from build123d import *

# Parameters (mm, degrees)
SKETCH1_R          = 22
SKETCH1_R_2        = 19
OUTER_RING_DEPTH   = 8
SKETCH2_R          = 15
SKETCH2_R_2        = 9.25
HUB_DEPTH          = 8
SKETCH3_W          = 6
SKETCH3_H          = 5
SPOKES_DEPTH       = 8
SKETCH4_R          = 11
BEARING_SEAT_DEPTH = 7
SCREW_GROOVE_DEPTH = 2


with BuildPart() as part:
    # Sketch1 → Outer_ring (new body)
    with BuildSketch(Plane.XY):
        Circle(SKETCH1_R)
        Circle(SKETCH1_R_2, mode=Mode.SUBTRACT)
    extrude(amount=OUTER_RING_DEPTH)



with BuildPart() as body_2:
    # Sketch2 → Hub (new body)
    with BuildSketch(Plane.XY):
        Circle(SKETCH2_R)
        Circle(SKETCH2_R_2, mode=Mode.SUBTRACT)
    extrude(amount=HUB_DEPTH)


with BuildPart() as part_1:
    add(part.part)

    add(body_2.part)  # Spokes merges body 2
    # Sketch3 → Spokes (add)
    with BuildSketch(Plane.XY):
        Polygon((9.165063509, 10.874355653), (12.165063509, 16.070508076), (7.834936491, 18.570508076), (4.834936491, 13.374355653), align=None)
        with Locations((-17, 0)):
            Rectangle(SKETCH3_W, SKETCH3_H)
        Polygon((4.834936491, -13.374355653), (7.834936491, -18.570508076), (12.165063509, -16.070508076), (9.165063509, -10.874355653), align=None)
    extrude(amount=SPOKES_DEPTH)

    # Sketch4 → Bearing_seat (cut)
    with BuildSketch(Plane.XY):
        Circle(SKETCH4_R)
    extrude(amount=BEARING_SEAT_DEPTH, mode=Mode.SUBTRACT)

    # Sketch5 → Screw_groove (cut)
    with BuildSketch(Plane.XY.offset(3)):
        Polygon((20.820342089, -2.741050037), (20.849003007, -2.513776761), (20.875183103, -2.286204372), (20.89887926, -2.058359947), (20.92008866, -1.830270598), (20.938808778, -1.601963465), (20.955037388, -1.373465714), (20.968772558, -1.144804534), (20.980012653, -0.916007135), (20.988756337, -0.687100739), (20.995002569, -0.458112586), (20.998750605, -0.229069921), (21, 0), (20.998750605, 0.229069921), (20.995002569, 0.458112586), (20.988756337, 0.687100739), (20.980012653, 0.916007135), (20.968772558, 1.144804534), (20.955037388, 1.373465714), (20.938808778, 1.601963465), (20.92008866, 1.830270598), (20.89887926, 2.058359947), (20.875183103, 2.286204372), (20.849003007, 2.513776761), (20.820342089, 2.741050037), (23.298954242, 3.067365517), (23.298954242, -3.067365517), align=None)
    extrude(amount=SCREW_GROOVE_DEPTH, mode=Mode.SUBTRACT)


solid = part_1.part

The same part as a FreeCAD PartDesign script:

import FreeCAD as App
import Part
import Sketcher
from FreeCAD import Vector
Q = App.Units.Quantity

doc = App.newDocument("Part")
params = doc.addObject("Spreadsheet::Sheet", "Params")
for row, (alias, value) in enumerate([
    ("sketch1_diameter", "44 mm"),
    ("sketch1_diameter2", "38 mm"),
    ("pad1_length", "8 mm"),
    ("sketch2_diameter", "30 mm"),
    ("sketch2_diameter2", "18.5 mm"),
    ("pad2_length", "8 mm"),
    ("sketch3_width", "6 mm"),
    ("sketch3_height", "5 mm"),
    ("sketch3_length", "6 mm"),
    ("sketch3_length2", "5 mm"),
    ("pad3_length", "8 mm"),
    ("sketch4_diameter", "22 mm"),
    ("pocket1_length", "7 mm"),
    ("sketch5_length", "2.5 mm"),
    ("pocket2_length", "2 mm"),
], start=1):
    params.set(f"A{row}", alias)
    params.set(f"B{row}", "=" + value)
    params.setAlias(f"B{row}", alias)

body = doc.addObject("PartDesign::Body", "Body")

# Sketch on XY plane
sketch1 = body.newObject("Sketcher::SketchObject", "Sketch")
sketch1.AttachmentSupport = (doc.getObject("XY_Plane"), [""])
sketch1.MapMode = "FlatFace"
sketch1.addGeometry(Part.Circle(Vector(0, 0, 0), Vector(0, 0, 1), 22), False)
sketch1.addGeometry(Part.Circle(Vector(0, 0, 0), Vector(0, 0, 1), 19), False)
sketch1.addConstraint(Sketcher.Constraint("Coincident", 0, 3, -1, 1))
sketch1.addConstraint(Sketcher.Constraint("Coincident", 1, 3, -1, 1))
sketch1.addConstraint(Sketcher.Constraint("Diameter", 0, Q("44 mm")))
sketch1.addConstraint(Sketcher.Constraint("Diameter", 1, Q("38 mm")))
sketch1.setExpression("Constraints[2]", "Params.sketch1_diameter")
sketch1.setExpression("Constraints[3]", "Params.sketch1_diameter2")
pad1 = body.newObject("PartDesign::Pad", "Pad")
pad1.Profile = sketch1
pad1.setExpression("Length", "Params.pad1_length")
body2 = doc.addObject("PartDesign::Body", "Body001")

# Sketch on XY plane
sketch2 = body2.newObject("Sketcher::SketchObject", "Sketch001")
sketch2.AttachmentSupport = (doc.getObject("XY_Plane001"), [""])
sketch2.MapMode = "FlatFace"
sketch2.addGeometry(Part.Circle(Vector(0, 0, 0), Vector(0, 0, 1), 15), False)
sketch2.addGeometry(Part.Circle(Vector(0, 0, 0), Vector(0, 0, 1), 9), False)
sketch2.addConstraint(Sketcher.Constraint("Coincident", 0, 3, -1, 1))
sketch2.addConstraint(Sketcher.Constraint("Coincident", 1, 3, -1, 1))
sketch2.addConstraint(Sketcher.Constraint("Diameter", 0, Q("30 mm")))
sketch2.addConstraint(Sketcher.Constraint("Diameter", 1, Q("18.5 mm")))
sketch2.setExpression("Constraints[2]", "Params.sketch2_diameter")
sketch2.setExpression("Constraints[3]", "Params.sketch2_diameter2")
pad2 = body2.newObject("PartDesign::Pad", "Pad001")
pad2.Profile = sketch2
pad2.setExpression("Length", "Params.pad2_length")
body.AllowCompound = True
doc.recompute()

boolean = body.newObject("PartDesign::Boolean", "Boolean")
boolean.Type = "Fuse"
boolean.addObjects([body2])

# Sketch on XY plane
sketch3 = body.newObject("Sketcher::SketchObject", "Sketch002")
sketch3.AttachmentSupport = (doc.getObject("XY_Plane"), [""])
sketch3.MapMode = "FlatFace"
sketch3.addGeometry(Part.LineSegment(Vector(9.2, 10.9, 0), Vector(12.2, 16.1, 0)), False)
sketch3.addGeometry(Part.LineSegment(Vector(12.2, 16.1, 0), Vector(7.8, 18.6, 0)), False)
sketch3.addGeometry(Part.LineSegment(Vector(7.8, 18.6, 0), Vector(4.8, 13.4, 0)), False)
sketch3.addGeometry(Part.LineSegment(Vector(4.8, 13.4, 0), Vector(9.2, 10.9, 0)), False)
sketch3.addGeometry(Part.LineSegment(Vector(-20, 2.5, 0), Vector(-20, -2.5, 0)), False)
sketch3.addGeometry(Part.LineSegment(Vector(-20, -2.5, 0), Vector(-14, -2.5, 0)), False)
sketch3.addGeometry(Part.LineSegment(Vector(-14, -2.5, 0), Vector(-14, 2.5, 0)), False)
sketch3.addGeometry(Part.LineSegment(Vector(-14, 2.5, 0), Vector(-20, 2.5, 0)), False)
sketch3.addGeometry(Part.LineSegment(Vector(4.8, -13.4, 0), Vector(7.8, -18.6, 0)), False)
sketch3.addGeometry(Part.LineSegment(Vector(7.8, -18.6, 0), Vector(12.2, -16.1, 0)), False)
sketch3.addGeometry(Part.LineSegment(Vector(12.2, -16.1, 0), Vector(9.2, -10.9, 0)), False)
sketch3.addGeometry(Part.LineSegment(Vector(9.2, -10.9, 0), Vector(4.8, -13.4, 0)), False)
sketch3.addConstraint(Sketcher.Constraint("Coincident", 0, 2, 1, 1))
sketch3.addConstraint(Sketcher.Constraint("Coincident", 1, 2, 2, 1))
sketch3.addConstraint(Sketcher.Constraint("Coincident", 2, 2, 3, 1))
sketch3.addConstraint(Sketcher.Constraint("Coincident", 3, 2, 0, 1))
sketch3.addConstraint(Sketcher.Constraint("Coincident", 4, 2, 5, 1))
sketch3.addConstraint(Sketcher.Constraint("Coincident", 5, 2, 6, 1))
sketch3.addConstraint(Sketcher.Constraint("Coincident", 6, 2, 7, 1))
sketch3.addConstraint(Sketcher.Constraint("Coincident", 7, 2, 4, 1))
sketch3.addConstraint(Sketcher.Constraint("Coincident", 8, 2, 9, 1))
sketch3.addConstraint(Sketcher.Constraint("Coincident", 9, 2, 10, 1))
sketch3.addConstraint(Sketcher.Constraint("Coincident", 10, 2, 11, 1))
sketch3.addConstraint(Sketcher.Constraint("Coincident", 11, 2, 8, 1))
sketch3.addConstraint(Sketcher.Constraint("Vertical", 4))
sketch3.addConstraint(Sketcher.Constraint("Horizontal", 5))
sketch3.addConstraint(Sketcher.Constraint("Vertical", 6))
sketch3.addConstraint(Sketcher.Constraint("Horizontal", 7))
sketch3.addConstraint(Sketcher.Constraint("Symmetric", 1, 2, 8, 2, -1))
sketch3.addConstraint(Sketcher.Constraint("Symmetric", 0, 2, 9, 2, -1))
sketch3.addConstraint(Sketcher.Constraint("Symmetric", 3, 2, 10, 2, -1))
sketch3.addConstraint(Sketcher.Constraint("Symmetric", 2, 2, 11, 2, -1))
sketch3.addConstraint(Sketcher.Constraint("Perpendicular", 0, 1))
sketch3.addConstraint(Sketcher.Constraint("Perpendicular", 1, 2))
sketch3.addConstraint(Sketcher.Constraint("Perpendicular", 2, 3))
sketch3.addConstraint(Sketcher.Constraint("DistanceX", 5, 1, 5, 2, Q("6 mm")))
sketch3.addConstraint(Sketcher.Constraint("DistanceY", 4, 2, 4, 1, Q("5 mm")))
sketch3.addConstraint(Sketcher.Constraint("Angle", 0, Q("60 deg")))
sketch3.addConstraint(Sketcher.Constraint("Distance", 0, Q("6 mm")))
sketch3.addConstraint(Sketcher.Constraint("Distance", 1, Q("5 mm")))
sketch3.addConstraint(Sketcher.Constraint("DistanceX", 4, 2, -1, 1, Q("20 mm")))
sketch3.addConstraint(Sketcher.Constraint("DistanceY", 4, 2, -1, 1, Q("2.5 mm")))
sketch3.addConstraint(Sketcher.Constraint("DistanceY", -1, 1, 0, 2, Q("16.070508 mm")))
sketch3.addConstraint(Sketcher.Constraint("DistanceX", -1, 1, 0, 2, Q("12.165064 mm")))
sketch3.setExpression("Constraints[23]", "Params.sketch3_width")
sketch3.setExpression("Constraints[24]", "Params.sketch3_height")
sketch3.setExpression("Constraints[26]", "Params.sketch3_length")
sketch3.setExpression("Constraints[27]", "Params.sketch3_length2")
pad3 = body.newObject("PartDesign::Pad", "Pad002")
pad3.Profile = sketch3
pad3.setExpression("Length", "Params.pad3_length")

# Sketch on XY plane
sketch4 = body.newObject("Sketcher::SketchObject", "Sketch003")
sketch4.AttachmentSupport = (doc.getObject("XY_Plane"), [""])
sketch4.MapMode = "FlatFace"
sketch4.addGeometry(Part.Circle(Vector(0, 0, 0), Vector(0, 0, 1), 11), False)
sketch4.addConstraint(Sketcher.Constraint("Coincident", 0, 3, -1, 1))
sketch4.addConstraint(Sketcher.Constraint("Diameter", 0, Q("22 mm")))
sketch4.setExpression("Constraints[1]", "Params.sketch4_diameter")
pocket1 = body.newObject("PartDesign::Pocket", "Pocket")
pocket1.Profile = sketch4
pocket1.setExpression("Length", "Params.pocket1_length")
pocket1.Reversed = True

# Sketch on XY plane
sketch5 = body.newObject("Sketcher::SketchObject", "Sketch004")
sketch5.AttachmentSupport = (doc.getObject("XY_Plane"), [""])
sketch5.MapMode = "FlatFace"
sketch5.AttachmentOffset = App.Placement(Vector(0, 0, 3), App.Rotation())
sketch5.addGeometry(Part.LineSegment(Vector(20.849003, -2.513777, 0), Vector(20.820342, -2.74105, 0)), False)
sketch5.addGeometry(Part.LineSegment(Vector(20.820342, -2.74105, 0), Vector(23.298954, -3.067366, 0)), False)
sketch5.addGeometry(Part.LineSegment(Vector(23.298954, -3.067366, 0), Vector(23.298954, 3.067366, 0)), False)
sketch5.addGeometry(Part.LineSegment(Vector(23.298954, 3.067366, 0), Vector(20.820342, 2.74105, 0)), False)
sketch5.addGeometry(Part.LineSegment(Vector(20.820342, 2.74105, 0), Vector(20.849003, 2.513777, 0)), False)
sketch5.addGeometry(Part.LineSegment(Vector(20.849003, 2.513777, 0), Vector(20.875183, 2.286204, 0)), False)
sketch5.addGeometry(Part.LineSegment(Vector(20.875183, 2.286204, 0), Vector(20.898879, 2.05836, 0)), False)
sketch5.addGeometry(Part.LineSegment(Vector(20.898879, 2.05836, 0), Vector(20.920089, 1.830271, 0)), False)
sketch5.addGeometry(Part.LineSegment(Vector(20.920089, 1.830271, 0), Vector(20.938809, 1.601963, 0)), False)
sketch5.addGeometry(Part.LineSegment(Vector(20.938809, 1.601963, 0), Vector(20.955037, 1.373466, 0)), False)
sketch5.addGeometry(Part.LineSegment(Vector(20.955037, 1.373466, 0), Vector(20.968773, 1.144805, 0)), False)
sketch5.addGeometry(Part.LineSegment(Vector(20.968773, 1.144805, 0), Vector(20.980013, 0.916007, 0)), False)
sketch5.addGeometry(Part.LineSegment(Vector(20.980013, 0.916007, 0), Vector(20.988756, 0.687101, 0)), False)
sketch5.addGeometry(Part.LineSegment(Vector(20.988756, 0.687101, 0), Vector(20.995003, 0.458113, 0)), False)
sketch5.addGeometry(Part.LineSegment(Vector(20.995003, 0.458113, 0), Vector(20.998751, 0.22907, 0)), False)
sketch5.addGeometry(Part.LineSegment(Vector(20.998751, 0.22907, 0), Vector(21, 0, 0)), False)
sketch5.addGeometry(Part.LineSegment(Vector(21, 0, 0), Vector(20.998751, -0.22907, 0)), False)
sketch5.addGeometry(Part.LineSegment(Vector(20.998751, -0.22907, 0), Vector(20.995003, -0.458113, 0)), False)
sketch5.addGeometry(Part.LineSegment(Vector(20.995003, -0.458113, 0), Vector(20.988756, -0.687101, 0)), False)
sketch5.addGeometry(Part.LineSegment(Vector(20.988756, -0.687101, 0), Vector(20.980013, -0.916007, 0)), False)
sketch5.addGeometry(Part.LineSegment(Vector(20.980013, -0.916007, 0), Vector(20.968773, -1.144805, 0)), False)
sketch5.addGeometry(Part.LineSegment(Vector(20.968773, -1.144805, 0), Vector(20.955037, -1.373466, 0)), False)
sketch5.addGeometry(Part.LineSegment(Vector(20.955037, -1.373466, 0), Vector(20.938809, -1.601963, 0)), False)
sketch5.addGeometry(Part.LineSegment(Vector(20.938809, -1.601963, 0), Vector(20.920089, -1.830271, 0)), False)
sketch5.addGeometry(Part.LineSegment(Vector(20.920089, -1.830271, 0), Vector(20.898879, -2.05836, 0)), False)
sketch5.addGeometry(Part.LineSegment(Vector(20.898879, -2.05836, 0), Vector(20.875183, -2.286204, 0)), False)
sketch5.addGeometry(Part.LineSegment(Vector(20.875183, -2.286204, 0), Vector(20.849003, -2.513777, 0)), False)
sketch5.addConstraint(Sketcher.Constraint("Coincident", 0, 2, 1, 1))
sketch5.addConstraint(Sketcher.Constraint("Coincident", 1, 2, 2, 1))
sketch5.addConstraint(Sketcher.Constraint("Coincident", 2, 2, 3, 1))
sketch5.addConstraint(Sketcher.Constraint("Coincident", 3, 2, 4, 1))
sketch5.addConstraint(Sketcher.Constraint("Coincident", 4, 2, 5, 1))
sketch5.addConstraint(Sketcher.Constraint("Coincident", 5, 2, 6, 1))
sketch5.addConstraint(Sketcher.Constraint("Coincident", 6, 2, 7, 1))
sketch5.addConstraint(Sketcher.Constraint("Coincident", 7, 2, 8, 1))
sketch5.addConstraint(Sketcher.Constraint("Coincident", 8, 2, 9, 1))
sketch5.addConstraint(Sketcher.Constraint("Coincident", 9, 2, 10, 1))
sketch5.addConstraint(Sketcher.Constraint("Coincident", 10, 2, 11, 1))
sketch5.addConstraint(Sketcher.Constraint("Coincident", 11, 2, 12, 1))
sketch5.addConstraint(Sketcher.Constraint("Coincident", 12, 2, 13, 1))
sketch5.addConstraint(Sketcher.Constraint("Coincident", 13, 2, 14, 1))
sketch5.addConstraint(Sketcher.Constraint("Coincident", 14, 2, 15, 1))
sketch5.addConstraint(Sketcher.Constraint("Coincident", 15, 2, 16, 1))
sketch5.addConstraint(Sketcher.Constraint("Coincident", 16, 2, 17, 1))
sketch5.addConstraint(Sketcher.Constraint("Coincident", 17, 2, 18, 1))
sketch5.addConstraint(Sketcher.Constraint("Coincident", 18, 2, 19, 1))
sketch5.addConstraint(Sketcher.Constraint("Coincident", 19, 2, 20, 1))
sketch5.addConstraint(Sketcher.Constraint("Coincident", 20, 2, 21, 1))
sketch5.addConstraint(Sketcher.Constraint("Coincident", 21, 2, 22, 1))
sketch5.addConstraint(Sketcher.Constraint("Coincident", 22, 2, 23, 1))
sketch5.addConstraint(Sketcher.Constraint("Coincident", 23, 2, 24, 1))
sketch5.addConstraint(Sketcher.Constraint("Coincident", 24, 2, 25, 1))
sketch5.addConstraint(Sketcher.Constraint("Coincident", 25, 2, 26, 1))
sketch5.addConstraint(Sketcher.Constraint("Coincident", 26, 2, 0, 1))
sketch5.addConstraint(Sketcher.Constraint("Vertical", 2))
sketch5.addConstraint(Sketcher.Constraint("Symmetric", 0, 2, 3, 2, -1))
sketch5.addConstraint(Sketcher.Constraint("Symmetric", 14, 2, 16, 2, -1))
sketch5.addConstraint(Sketcher.Constraint("Symmetric", 13, 2, 17, 2, -1))
sketch5.addConstraint(Sketcher.Constraint("Symmetric", 12, 2, 18, 2, -1))
sketch5.addConstraint(Sketcher.Constraint("Symmetric", 11, 2, 19, 2, -1))
sketch5.addConstraint(Sketcher.Constraint("Symmetric", 10, 2, 20, 2, -1))
sketch5.addConstraint(Sketcher.Constraint("Symmetric", 9, 2, 21, 2, -1))
sketch5.addConstraint(Sketcher.Constraint("Symmetric", 8, 2, 22, 2, -1))
sketch5.addConstraint(Sketcher.Constraint("Symmetric", 7, 2, 23, 2, -1))
sketch5.addConstraint(Sketcher.Constraint("Symmetric", 6, 2, 24, 2, -1))
sketch5.addConstraint(Sketcher.Constraint("Symmetric", 5, 2, 25, 2, -1))
sketch5.addConstraint(Sketcher.Constraint("Symmetric", 4, 2, 26, 2, -1))
sketch5.addConstraint(Sketcher.Constraint("PointOnObject", 15, 2, -1))
sketch5.addConstraint(Sketcher.Constraint("Equal", 1, 3))
sketch5.addConstraint(Sketcher.Constraint("Equal", 4, 5))
sketch5.addConstraint(Sketcher.Constraint("Equal", 5, 6))
sketch5.addConstraint(Sketcher.Constraint("Equal", 6, 7))
sketch5.addConstraint(Sketcher.Constraint("Equal", 7, 8))
sketch5.addConstraint(Sketcher.Constraint("Equal", 8, 9))
sketch5.addConstraint(Sketcher.Constraint("Equal", 9, 10))
sketch5.addConstraint(Sketcher.Constraint("Equal", 10, 11))
sketch5.addConstraint(Sketcher.Constraint("Equal", 11, 12))
sketch5.addConstraint(Sketcher.Constraint("Equal", 12, 13))
sketch5.addConstraint(Sketcher.Constraint("Equal", 13, 14))
sketch5.addConstraint(Sketcher.Constraint("Equal", 14, 15))
sketch5.addConstraint(Sketcher.Constraint("DistanceX", -1, 1, 15, 2, Q("21 mm")))
sketch5.addConstraint(Sketcher.Constraint("Angle", 1, Q("-7.5 deg")))
sketch5.addConstraint(Sketcher.Constraint("Distance", 1, Q("2.5 mm")))
sketch5.addConstraint(Sketcher.Constraint("DistanceY", 2, 1, 2, 2, Q("6.134731 mm")))
sketch5.addConstraint(Sketcher.Constraint("DistanceY", -1, 1, 12, 2, Q("0.687101 mm")))
sketch5.addConstraint(Sketcher.Constraint("DistanceY", 10, 2, 5, 2, Q("1.1414 mm")))
sketch5.addConstraint(Sketcher.Constraint("DistanceX", -1, 1, 6, 2, Q("20.898879 mm")))
sketch5.addConstraint(Sketcher.Constraint("DistanceY", -1, 1, 6, 2, Q("2.05836 mm")))
sketch5.addConstraint(Sketcher.Constraint("DistanceX", -1, 1, 7, 2, Q("20.920089 mm")))
sketch5.addConstraint(Sketcher.Constraint("DistanceX", -1, 1, 8, 2, Q("20.938809 mm")))
sketch5.addConstraint(Sketcher.Constraint("DistanceX", -1, 1, 14, 2, Q("20.998751 mm")))
sketch5.addConstraint(Sketcher.Constraint("DistanceX", 3, 2, 4, 2, Q("0.028661 mm")))
sketch5.addConstraint(Sketcher.Constraint("DistanceX", 4, 2, 5, 2, Q("0.02618 mm")))
sketch5.addConstraint(Sketcher.Constraint("DistanceX", 8, 2, 9, 2, Q("0.016229 mm")))
sketch5.addConstraint(Sketcher.Constraint("DistanceX", 5, 2, 10, 2, Q("0.093589 mm")))
sketch5.addConstraint(Sketcher.Constraint("DistanceX", 10, 2, 11, 2, Q("0.01124 mm")))
sketch5.setExpression("Constraints[55]", "Params.sketch5_length")
pocket2 = body.newObject("PartDesign::Pocket", "Pocket001")
pocket2.Profile = sketch5
pocket2.setExpression("Length", "Params.pocket2_length")
pocket2.Reversed = True

doc.recompute()
